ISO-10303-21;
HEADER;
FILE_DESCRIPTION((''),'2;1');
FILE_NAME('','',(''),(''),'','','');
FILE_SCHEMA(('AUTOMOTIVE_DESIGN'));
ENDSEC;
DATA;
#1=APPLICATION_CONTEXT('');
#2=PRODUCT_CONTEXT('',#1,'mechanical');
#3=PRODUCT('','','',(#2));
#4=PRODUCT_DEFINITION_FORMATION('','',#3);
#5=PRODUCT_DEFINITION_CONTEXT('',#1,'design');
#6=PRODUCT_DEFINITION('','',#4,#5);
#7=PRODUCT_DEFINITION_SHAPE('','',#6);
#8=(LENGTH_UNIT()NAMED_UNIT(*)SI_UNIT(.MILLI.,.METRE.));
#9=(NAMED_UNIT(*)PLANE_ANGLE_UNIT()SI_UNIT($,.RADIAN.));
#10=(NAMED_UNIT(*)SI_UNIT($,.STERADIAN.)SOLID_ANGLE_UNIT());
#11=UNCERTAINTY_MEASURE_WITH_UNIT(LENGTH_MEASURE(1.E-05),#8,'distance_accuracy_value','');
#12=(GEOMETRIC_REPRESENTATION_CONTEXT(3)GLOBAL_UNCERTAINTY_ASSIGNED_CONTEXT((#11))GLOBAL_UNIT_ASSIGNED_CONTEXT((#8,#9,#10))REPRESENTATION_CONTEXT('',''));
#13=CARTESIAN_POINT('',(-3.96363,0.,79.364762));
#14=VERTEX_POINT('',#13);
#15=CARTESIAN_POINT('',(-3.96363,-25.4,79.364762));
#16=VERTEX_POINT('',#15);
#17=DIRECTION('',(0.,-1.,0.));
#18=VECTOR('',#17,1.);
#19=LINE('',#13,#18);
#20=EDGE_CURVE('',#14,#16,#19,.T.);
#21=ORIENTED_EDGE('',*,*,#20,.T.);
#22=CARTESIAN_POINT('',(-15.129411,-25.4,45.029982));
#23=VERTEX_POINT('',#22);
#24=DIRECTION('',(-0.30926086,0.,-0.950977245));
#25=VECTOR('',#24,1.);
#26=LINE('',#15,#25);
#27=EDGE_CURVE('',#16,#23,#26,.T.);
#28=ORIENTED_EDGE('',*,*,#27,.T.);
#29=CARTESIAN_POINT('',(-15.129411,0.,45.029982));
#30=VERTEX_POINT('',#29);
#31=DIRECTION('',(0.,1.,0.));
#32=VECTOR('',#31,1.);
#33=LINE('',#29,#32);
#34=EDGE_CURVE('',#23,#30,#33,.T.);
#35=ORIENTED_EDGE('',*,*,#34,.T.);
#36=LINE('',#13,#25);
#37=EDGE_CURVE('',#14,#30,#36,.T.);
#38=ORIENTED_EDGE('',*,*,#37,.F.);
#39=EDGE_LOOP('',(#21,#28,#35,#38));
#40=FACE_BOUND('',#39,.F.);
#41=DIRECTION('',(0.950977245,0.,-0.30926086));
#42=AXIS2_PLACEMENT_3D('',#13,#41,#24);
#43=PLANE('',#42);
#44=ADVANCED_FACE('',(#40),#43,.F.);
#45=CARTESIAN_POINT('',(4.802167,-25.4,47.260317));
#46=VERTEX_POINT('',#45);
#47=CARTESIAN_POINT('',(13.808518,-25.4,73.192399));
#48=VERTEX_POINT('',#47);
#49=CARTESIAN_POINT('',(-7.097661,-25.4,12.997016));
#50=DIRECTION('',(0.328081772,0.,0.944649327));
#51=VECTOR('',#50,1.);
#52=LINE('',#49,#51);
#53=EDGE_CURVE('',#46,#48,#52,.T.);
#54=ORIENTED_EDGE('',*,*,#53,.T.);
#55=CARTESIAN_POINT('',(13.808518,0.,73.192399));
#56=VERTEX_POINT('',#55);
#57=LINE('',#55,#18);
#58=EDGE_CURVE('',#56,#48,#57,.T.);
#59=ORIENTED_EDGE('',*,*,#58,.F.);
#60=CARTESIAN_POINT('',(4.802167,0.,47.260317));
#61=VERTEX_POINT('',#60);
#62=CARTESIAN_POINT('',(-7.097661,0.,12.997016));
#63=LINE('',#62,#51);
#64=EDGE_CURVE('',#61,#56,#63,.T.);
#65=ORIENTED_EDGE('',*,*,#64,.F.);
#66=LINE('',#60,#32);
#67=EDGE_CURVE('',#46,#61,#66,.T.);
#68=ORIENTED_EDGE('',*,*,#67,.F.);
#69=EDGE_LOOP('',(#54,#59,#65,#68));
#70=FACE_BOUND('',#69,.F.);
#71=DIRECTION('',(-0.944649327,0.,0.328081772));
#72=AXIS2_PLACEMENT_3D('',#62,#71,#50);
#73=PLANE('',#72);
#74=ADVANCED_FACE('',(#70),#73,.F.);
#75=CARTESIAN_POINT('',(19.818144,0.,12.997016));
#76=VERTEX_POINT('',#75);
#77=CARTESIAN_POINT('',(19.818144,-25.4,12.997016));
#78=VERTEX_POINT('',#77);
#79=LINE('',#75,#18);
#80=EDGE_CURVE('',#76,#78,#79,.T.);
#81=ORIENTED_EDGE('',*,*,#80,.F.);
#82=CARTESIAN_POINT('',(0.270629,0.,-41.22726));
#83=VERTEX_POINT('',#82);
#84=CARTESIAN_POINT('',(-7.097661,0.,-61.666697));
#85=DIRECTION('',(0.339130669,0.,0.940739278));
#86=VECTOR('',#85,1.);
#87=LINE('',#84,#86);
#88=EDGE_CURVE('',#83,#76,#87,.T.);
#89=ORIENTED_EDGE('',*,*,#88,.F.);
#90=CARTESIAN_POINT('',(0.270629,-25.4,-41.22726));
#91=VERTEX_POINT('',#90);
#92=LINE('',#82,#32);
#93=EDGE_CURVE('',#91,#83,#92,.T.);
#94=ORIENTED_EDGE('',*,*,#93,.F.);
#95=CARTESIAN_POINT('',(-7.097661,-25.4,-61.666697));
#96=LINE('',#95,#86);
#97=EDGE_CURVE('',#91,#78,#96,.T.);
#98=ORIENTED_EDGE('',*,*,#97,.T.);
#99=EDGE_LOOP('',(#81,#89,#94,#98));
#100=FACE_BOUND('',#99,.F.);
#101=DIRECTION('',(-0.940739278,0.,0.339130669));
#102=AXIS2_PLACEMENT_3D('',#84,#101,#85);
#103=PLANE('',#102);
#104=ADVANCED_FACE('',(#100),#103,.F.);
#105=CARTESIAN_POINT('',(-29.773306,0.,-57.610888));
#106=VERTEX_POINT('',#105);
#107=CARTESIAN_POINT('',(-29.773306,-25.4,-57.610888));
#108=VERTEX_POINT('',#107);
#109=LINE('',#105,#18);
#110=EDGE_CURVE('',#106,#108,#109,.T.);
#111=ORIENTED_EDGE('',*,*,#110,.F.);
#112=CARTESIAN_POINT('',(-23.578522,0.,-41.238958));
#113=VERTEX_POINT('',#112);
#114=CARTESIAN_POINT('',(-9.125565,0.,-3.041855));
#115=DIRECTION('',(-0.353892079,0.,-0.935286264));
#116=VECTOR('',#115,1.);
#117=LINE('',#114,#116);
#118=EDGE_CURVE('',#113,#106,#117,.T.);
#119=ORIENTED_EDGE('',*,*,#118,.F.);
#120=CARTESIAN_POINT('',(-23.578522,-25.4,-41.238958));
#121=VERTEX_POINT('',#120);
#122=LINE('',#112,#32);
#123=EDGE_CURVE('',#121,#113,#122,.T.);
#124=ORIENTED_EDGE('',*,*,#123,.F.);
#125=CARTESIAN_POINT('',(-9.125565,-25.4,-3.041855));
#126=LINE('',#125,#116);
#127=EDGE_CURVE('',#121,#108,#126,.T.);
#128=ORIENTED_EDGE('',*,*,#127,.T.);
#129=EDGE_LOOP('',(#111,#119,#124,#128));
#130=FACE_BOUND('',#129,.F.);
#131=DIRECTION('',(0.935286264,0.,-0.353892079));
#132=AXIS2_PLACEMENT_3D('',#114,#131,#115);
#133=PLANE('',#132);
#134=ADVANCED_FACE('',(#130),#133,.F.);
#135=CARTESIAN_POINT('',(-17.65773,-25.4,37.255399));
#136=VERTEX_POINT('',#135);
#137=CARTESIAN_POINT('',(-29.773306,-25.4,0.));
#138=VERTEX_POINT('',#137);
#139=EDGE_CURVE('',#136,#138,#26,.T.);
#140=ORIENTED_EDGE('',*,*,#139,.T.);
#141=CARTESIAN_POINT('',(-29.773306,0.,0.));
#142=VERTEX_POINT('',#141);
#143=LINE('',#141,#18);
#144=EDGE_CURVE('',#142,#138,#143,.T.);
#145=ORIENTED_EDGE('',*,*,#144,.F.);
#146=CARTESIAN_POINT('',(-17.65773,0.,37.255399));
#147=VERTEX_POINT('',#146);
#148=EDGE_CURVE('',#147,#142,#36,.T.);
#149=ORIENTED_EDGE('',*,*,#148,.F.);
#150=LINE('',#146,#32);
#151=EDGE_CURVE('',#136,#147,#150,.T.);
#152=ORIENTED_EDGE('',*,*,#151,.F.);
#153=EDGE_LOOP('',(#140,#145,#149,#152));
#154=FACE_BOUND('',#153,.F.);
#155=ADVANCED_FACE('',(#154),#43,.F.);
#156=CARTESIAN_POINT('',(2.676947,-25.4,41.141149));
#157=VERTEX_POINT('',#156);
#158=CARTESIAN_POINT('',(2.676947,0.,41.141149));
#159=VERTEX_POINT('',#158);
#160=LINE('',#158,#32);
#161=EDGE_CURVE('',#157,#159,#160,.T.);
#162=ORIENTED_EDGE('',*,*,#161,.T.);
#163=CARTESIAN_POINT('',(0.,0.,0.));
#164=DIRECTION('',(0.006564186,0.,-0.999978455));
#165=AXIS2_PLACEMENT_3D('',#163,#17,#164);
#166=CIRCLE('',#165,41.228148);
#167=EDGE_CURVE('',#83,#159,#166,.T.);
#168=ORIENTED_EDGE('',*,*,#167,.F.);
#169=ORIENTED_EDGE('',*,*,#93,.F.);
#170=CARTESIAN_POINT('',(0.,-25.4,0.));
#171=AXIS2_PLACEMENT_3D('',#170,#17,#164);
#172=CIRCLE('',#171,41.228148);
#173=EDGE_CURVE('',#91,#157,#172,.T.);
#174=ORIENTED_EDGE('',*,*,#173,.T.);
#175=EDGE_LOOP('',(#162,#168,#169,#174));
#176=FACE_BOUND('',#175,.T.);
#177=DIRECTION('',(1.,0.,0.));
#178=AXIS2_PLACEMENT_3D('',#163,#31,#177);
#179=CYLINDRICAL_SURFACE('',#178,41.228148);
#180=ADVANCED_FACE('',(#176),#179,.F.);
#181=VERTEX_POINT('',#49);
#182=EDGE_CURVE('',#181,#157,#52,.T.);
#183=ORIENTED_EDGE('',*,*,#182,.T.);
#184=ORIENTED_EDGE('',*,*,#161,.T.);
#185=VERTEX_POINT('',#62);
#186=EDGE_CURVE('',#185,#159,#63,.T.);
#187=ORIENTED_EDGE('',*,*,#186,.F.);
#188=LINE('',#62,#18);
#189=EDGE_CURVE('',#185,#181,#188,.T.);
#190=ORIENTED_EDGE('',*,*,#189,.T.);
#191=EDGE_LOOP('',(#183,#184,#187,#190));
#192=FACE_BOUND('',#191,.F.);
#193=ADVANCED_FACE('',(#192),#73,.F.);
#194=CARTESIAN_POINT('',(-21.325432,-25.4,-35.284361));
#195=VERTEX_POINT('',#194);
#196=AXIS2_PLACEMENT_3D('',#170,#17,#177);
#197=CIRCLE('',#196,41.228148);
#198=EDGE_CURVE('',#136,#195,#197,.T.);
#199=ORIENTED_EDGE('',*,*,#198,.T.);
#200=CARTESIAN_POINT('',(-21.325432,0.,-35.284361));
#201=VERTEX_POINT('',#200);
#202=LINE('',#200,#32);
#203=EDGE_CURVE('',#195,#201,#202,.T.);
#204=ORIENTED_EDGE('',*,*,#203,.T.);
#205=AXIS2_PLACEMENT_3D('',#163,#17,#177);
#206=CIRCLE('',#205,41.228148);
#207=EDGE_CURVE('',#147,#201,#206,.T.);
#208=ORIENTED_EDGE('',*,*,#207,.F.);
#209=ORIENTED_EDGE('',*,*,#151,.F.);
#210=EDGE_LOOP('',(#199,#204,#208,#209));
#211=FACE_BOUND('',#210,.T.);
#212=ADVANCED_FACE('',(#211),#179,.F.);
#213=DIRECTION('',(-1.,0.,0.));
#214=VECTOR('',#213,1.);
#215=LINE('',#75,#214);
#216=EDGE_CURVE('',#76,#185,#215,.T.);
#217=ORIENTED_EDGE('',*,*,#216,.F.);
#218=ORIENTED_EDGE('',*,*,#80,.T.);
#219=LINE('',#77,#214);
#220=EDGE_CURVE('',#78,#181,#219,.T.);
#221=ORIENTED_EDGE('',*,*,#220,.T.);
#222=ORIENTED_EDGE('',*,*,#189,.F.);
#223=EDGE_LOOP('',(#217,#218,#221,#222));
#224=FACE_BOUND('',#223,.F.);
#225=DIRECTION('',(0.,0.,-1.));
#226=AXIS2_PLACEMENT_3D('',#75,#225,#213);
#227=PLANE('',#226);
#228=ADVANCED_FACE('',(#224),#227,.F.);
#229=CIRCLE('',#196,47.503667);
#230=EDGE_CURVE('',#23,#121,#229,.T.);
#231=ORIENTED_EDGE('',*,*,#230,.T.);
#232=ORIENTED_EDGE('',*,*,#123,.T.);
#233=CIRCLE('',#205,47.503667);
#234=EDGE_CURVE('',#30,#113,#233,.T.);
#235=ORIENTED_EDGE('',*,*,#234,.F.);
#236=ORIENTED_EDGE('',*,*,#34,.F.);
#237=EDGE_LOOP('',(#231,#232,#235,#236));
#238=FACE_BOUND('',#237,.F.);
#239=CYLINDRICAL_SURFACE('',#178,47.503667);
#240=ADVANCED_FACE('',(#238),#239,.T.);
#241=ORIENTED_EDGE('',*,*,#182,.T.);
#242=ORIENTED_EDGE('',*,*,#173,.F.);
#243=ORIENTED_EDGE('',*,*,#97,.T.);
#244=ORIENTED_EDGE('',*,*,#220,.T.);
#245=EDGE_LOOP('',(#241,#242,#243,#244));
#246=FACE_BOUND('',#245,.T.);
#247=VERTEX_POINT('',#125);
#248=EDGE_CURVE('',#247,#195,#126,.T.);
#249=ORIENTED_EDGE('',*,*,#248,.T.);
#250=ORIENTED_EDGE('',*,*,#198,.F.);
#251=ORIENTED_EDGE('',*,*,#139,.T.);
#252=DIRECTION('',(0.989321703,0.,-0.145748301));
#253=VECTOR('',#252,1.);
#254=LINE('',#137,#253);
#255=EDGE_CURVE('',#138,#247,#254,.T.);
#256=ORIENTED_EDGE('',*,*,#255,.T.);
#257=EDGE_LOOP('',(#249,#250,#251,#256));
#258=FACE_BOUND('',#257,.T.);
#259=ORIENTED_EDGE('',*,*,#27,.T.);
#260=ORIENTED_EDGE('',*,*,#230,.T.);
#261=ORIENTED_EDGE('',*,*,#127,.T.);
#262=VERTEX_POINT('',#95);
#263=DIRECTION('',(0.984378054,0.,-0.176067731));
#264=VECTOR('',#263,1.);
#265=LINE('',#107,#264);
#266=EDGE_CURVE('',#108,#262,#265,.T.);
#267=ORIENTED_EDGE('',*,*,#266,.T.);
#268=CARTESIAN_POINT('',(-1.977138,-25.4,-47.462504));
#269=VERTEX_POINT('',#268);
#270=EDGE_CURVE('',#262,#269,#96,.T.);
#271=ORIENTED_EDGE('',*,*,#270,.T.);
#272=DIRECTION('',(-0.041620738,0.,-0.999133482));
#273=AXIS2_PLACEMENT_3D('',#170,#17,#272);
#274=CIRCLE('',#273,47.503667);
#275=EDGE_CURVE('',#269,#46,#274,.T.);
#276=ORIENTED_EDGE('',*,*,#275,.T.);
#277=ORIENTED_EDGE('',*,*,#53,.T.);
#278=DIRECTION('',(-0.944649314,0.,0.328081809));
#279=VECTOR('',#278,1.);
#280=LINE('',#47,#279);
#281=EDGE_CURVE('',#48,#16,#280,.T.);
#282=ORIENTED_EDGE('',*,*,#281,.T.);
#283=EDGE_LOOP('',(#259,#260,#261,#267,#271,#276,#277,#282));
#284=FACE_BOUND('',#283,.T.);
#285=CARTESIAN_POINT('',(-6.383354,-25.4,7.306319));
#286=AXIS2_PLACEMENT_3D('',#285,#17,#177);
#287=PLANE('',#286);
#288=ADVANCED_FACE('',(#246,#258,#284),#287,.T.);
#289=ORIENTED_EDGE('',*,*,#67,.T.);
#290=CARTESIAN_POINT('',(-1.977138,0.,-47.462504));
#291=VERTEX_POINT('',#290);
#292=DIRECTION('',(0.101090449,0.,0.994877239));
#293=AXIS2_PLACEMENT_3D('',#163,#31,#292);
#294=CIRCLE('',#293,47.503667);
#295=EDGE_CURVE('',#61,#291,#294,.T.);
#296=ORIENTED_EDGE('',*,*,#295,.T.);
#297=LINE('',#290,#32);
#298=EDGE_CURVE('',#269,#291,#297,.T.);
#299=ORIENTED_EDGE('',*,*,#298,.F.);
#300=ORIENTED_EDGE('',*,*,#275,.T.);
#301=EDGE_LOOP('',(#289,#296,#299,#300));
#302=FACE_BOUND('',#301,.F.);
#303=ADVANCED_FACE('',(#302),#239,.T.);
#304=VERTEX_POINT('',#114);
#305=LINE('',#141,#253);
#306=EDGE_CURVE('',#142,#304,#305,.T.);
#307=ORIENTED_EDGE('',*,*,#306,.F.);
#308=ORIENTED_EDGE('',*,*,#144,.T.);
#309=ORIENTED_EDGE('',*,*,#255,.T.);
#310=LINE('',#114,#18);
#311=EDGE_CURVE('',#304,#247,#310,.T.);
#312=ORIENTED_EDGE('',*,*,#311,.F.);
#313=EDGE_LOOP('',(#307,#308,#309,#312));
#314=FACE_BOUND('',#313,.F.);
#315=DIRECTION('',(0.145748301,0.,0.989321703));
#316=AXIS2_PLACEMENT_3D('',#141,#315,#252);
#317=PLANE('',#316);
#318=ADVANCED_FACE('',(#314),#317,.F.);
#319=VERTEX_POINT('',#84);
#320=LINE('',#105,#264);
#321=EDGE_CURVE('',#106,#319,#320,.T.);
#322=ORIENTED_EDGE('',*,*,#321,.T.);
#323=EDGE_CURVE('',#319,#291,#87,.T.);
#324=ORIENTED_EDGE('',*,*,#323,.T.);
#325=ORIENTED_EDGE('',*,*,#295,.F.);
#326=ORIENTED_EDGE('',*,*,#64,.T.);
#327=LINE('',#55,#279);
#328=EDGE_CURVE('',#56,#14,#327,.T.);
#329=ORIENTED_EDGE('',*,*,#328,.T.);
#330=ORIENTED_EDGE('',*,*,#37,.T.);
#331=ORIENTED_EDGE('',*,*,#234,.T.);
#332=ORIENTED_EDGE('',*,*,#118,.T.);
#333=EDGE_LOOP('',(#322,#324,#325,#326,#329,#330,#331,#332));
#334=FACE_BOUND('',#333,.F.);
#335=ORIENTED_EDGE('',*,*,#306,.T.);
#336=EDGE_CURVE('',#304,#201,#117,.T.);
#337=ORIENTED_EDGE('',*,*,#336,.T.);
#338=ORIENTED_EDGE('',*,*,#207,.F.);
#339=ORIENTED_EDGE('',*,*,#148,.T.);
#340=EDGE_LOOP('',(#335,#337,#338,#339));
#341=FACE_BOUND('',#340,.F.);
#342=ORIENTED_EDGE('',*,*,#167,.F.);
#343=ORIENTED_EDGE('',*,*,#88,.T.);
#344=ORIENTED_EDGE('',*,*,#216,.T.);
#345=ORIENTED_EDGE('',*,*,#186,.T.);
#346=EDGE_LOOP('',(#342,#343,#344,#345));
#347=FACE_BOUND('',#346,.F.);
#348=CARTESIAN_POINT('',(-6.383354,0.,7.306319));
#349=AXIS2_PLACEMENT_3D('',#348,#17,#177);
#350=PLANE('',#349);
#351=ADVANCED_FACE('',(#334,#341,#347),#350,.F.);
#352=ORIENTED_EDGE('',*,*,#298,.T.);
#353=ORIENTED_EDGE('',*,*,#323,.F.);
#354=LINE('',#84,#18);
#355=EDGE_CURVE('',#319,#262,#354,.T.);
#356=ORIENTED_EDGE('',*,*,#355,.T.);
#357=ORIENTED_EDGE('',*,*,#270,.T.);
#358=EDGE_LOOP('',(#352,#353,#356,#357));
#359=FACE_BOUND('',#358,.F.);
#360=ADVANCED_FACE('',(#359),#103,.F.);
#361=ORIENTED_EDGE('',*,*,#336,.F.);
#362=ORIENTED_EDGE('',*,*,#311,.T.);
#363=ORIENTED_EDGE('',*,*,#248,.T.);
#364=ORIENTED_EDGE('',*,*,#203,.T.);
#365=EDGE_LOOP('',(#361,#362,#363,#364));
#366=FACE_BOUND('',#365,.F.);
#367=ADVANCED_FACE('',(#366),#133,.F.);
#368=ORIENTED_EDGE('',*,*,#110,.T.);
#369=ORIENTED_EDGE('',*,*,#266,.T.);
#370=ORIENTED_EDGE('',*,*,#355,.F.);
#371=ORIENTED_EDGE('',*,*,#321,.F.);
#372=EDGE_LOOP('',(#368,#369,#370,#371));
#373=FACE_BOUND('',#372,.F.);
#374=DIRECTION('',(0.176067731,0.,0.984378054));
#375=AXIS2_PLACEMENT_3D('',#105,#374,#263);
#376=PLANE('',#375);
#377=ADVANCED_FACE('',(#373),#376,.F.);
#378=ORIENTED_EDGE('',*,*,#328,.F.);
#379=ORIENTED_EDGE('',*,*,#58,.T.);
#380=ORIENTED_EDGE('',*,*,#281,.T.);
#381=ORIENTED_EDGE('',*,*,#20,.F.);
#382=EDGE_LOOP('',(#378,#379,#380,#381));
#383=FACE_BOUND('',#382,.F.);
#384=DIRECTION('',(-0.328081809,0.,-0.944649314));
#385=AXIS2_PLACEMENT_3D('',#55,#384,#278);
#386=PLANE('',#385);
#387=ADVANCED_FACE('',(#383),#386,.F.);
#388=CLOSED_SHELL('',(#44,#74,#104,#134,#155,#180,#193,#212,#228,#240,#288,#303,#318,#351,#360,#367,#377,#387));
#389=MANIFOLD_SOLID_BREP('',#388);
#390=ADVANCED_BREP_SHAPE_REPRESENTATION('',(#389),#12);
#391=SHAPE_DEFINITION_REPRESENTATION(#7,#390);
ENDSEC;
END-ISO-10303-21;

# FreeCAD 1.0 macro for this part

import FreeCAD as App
import Part
import Sketcher

V = App.Vector
Q = App.Units.Quantity

doc = App.newDocument("Part")
body = doc.addObject("PartDesign::Body", "Body")

# Sketch on XZ plane
sketch1 = body.newObject("Sketcher::SketchObject", "Sketch")
sketch1.AttachmentSupport = (doc.getObject("XZ_Plane"), [""])
sketch1.MapMode = "FlatFace"
sketch1.addGeometry([
    Part.Circle(V(0, 0, 0), V(0, 0, 1), 48),
    Part.Circle(V(0, 0, 0), V(0, 0, 1), 41),
], False)
sketch1.addConstraint([
    Sketcher.Constraint("Coincident", 0, 3, -1, 1),
    Sketcher.Constraint("Coincident", 1, 3, -1, 1),
    Sketcher.Constraint("Diameter", 0, 95.007334),
    Sketcher.Constraint("Diameter", 1, 82.456296),
])
pad1 = body.newObject("PartDesign::Pad", "Pad")
pad1.Profile = sketch1
pad1.Length = Q("1 in")

# Sketch on XZ plane
sketch2 = body.newObject("Sketcher::SketchObject", "Sketch001")
sketch2.AttachmentSupport = (doc.getObject("XZ_Plane"), [""])
sketch2.MapMode = "FlatFace"
sketch2.addGeometry([
    Part.LineSegment(V(-7, 13, 0), V(14, 73, 0)),  # 0
    Part.LineSegment(V(14, 73, 0), V(-4, 79, 0)),  # 1
    Part.LineSegment(V(-4, 79, 0), V(-30, 0, 0)),  # 2
    Part.LineSegment(V(-30, 0, 0), V(-9, -3, 0)),  # 3
    Part.LineSegment(V(-9, -3, 0), V(-30, -58, 0)),  # 4
    Part.LineSegment(V(-30, -58, 0), V(-7, -62, 0)),  # 5
    Part.LineSegment(V(-7, -62, 0), V(20, 13, 0)),  # 6
    Part.LineSegment(V(20, 13, 0), V(-7, 13, 0)),  # 7
], False)
sketch2.addConstraint([
    Sketcher.Constraint("Coincident", 0, 2, 1, 1),
    Sketcher.Constraint("Coincident", 1, 2, 2, 1),
    Sketcher.Constraint("Coincident", 2, 2, 3, 1),
    Sketcher.Constraint("Coincident", 3, 2, 4, 1),
    Sketcher.Constraint("Coincident", 4, 2, 5, 1),
    Sketcher.Constraint("Coincident", 5, 2, 6, 1),
    Sketcher.Constraint("Coincident", 6, 2, 7, 1),
    Sketcher.Constraint("Coincident", 7, 2, 0, 1),
    Sketcher.Constraint("Horizontal", 7),
    Sketcher.Constraint("PointOnObject", 2, 2, -1),
    Sketcher.Constraint("Perpendicular", 0, 1),
    Sketcher.Constraint("Vertical", 2, 2, 4, 2),
    Sketcher.Constraint("Vertical", 5, 2, 7, 2),
    Sketcher.Constraint("DistanceY", -1, 1, 0, 2, 73.192399),
    Sketcher.Constraint("Distance", 4, 58.344739),
    Sketcher.Constraint("DistanceX", 7, 2, 7, 1, 26.915805),
    Sketcher.Constraint("DistanceX", 1, 2, -1, 1, 3.96363),
    Sketcher.Constraint("DistanceY", -1, 1, 1, 2, 79.364762),
    Sketcher.Constraint("DistanceY", 4, 2, -1, 1, 57.610888),
    Sketcher.Constraint("DistanceX", 5, 2, -1, 1, 7.097661),
    Sketcher.Constraint("DistanceX", 1, 2, 0, 2, 17.772148),
    Sketcher.Constraint("DistanceX", 2, 2, 3, 2, 20.647741),
    Sketcher.Constraint("DistanceY", 5, 2, 4, 2, 4.055809),
    Sketcher.Constraint("DistanceX", 3, 2, 6, 2, 28.943709),
])
pad2 = body.newObject("PartDesign::Pad", "Pad001")
pad2.Profile = sketch2
pad2.Length = Q("1 in")

doc.recompute()
